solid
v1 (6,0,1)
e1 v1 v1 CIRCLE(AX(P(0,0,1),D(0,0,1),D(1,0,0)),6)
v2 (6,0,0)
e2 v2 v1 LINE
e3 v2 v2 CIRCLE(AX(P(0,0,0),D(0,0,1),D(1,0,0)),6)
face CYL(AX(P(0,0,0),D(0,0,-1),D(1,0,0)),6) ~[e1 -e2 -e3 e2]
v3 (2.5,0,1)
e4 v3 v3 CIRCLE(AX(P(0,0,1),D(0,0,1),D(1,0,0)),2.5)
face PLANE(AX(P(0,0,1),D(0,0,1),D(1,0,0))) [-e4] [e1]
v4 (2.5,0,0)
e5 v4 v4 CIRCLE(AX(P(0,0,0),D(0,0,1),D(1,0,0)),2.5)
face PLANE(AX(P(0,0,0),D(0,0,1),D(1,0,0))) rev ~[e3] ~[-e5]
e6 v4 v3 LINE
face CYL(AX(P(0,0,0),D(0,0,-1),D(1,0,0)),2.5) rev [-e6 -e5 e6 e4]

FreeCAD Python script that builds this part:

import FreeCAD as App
import Part
import Sketcher

V = App.Vector

doc = App.newDocument("Part")
body = doc.addObject("PartDesign::Body", "Body")

sketch1 = body.newObject("Sketcher::SketchObject", "Sketch")
sketch1.AttachmentSupport = (doc.getObject("XY_Plane"), [""])
sketch1.MapMode = "FlatFace"
sketch1.addGeometry([
    Part.Circle(V(0, 0, 0), V(0, 0, 1), 6),
    Part.Circle(V(0, 0, 0), V(0, 0, 1), 2.5),
], False)
sketch1.addConstraint([
    Sketcher.Constraint("Coincident", 0, 3, -1, 1),
    Sketcher.Constraint("Coincident", 1, 3, -1, 1),
    Sketcher.Constraint("Diameter", 0, 12.0),
    Sketcher.Constraint("Diameter", 1, 5.0),
])
pad1 = body.newObject("PartDesign::Pad", "Pad")
pad1.Profile = sketch1
pad1.Length = 1

doc.recompute()
